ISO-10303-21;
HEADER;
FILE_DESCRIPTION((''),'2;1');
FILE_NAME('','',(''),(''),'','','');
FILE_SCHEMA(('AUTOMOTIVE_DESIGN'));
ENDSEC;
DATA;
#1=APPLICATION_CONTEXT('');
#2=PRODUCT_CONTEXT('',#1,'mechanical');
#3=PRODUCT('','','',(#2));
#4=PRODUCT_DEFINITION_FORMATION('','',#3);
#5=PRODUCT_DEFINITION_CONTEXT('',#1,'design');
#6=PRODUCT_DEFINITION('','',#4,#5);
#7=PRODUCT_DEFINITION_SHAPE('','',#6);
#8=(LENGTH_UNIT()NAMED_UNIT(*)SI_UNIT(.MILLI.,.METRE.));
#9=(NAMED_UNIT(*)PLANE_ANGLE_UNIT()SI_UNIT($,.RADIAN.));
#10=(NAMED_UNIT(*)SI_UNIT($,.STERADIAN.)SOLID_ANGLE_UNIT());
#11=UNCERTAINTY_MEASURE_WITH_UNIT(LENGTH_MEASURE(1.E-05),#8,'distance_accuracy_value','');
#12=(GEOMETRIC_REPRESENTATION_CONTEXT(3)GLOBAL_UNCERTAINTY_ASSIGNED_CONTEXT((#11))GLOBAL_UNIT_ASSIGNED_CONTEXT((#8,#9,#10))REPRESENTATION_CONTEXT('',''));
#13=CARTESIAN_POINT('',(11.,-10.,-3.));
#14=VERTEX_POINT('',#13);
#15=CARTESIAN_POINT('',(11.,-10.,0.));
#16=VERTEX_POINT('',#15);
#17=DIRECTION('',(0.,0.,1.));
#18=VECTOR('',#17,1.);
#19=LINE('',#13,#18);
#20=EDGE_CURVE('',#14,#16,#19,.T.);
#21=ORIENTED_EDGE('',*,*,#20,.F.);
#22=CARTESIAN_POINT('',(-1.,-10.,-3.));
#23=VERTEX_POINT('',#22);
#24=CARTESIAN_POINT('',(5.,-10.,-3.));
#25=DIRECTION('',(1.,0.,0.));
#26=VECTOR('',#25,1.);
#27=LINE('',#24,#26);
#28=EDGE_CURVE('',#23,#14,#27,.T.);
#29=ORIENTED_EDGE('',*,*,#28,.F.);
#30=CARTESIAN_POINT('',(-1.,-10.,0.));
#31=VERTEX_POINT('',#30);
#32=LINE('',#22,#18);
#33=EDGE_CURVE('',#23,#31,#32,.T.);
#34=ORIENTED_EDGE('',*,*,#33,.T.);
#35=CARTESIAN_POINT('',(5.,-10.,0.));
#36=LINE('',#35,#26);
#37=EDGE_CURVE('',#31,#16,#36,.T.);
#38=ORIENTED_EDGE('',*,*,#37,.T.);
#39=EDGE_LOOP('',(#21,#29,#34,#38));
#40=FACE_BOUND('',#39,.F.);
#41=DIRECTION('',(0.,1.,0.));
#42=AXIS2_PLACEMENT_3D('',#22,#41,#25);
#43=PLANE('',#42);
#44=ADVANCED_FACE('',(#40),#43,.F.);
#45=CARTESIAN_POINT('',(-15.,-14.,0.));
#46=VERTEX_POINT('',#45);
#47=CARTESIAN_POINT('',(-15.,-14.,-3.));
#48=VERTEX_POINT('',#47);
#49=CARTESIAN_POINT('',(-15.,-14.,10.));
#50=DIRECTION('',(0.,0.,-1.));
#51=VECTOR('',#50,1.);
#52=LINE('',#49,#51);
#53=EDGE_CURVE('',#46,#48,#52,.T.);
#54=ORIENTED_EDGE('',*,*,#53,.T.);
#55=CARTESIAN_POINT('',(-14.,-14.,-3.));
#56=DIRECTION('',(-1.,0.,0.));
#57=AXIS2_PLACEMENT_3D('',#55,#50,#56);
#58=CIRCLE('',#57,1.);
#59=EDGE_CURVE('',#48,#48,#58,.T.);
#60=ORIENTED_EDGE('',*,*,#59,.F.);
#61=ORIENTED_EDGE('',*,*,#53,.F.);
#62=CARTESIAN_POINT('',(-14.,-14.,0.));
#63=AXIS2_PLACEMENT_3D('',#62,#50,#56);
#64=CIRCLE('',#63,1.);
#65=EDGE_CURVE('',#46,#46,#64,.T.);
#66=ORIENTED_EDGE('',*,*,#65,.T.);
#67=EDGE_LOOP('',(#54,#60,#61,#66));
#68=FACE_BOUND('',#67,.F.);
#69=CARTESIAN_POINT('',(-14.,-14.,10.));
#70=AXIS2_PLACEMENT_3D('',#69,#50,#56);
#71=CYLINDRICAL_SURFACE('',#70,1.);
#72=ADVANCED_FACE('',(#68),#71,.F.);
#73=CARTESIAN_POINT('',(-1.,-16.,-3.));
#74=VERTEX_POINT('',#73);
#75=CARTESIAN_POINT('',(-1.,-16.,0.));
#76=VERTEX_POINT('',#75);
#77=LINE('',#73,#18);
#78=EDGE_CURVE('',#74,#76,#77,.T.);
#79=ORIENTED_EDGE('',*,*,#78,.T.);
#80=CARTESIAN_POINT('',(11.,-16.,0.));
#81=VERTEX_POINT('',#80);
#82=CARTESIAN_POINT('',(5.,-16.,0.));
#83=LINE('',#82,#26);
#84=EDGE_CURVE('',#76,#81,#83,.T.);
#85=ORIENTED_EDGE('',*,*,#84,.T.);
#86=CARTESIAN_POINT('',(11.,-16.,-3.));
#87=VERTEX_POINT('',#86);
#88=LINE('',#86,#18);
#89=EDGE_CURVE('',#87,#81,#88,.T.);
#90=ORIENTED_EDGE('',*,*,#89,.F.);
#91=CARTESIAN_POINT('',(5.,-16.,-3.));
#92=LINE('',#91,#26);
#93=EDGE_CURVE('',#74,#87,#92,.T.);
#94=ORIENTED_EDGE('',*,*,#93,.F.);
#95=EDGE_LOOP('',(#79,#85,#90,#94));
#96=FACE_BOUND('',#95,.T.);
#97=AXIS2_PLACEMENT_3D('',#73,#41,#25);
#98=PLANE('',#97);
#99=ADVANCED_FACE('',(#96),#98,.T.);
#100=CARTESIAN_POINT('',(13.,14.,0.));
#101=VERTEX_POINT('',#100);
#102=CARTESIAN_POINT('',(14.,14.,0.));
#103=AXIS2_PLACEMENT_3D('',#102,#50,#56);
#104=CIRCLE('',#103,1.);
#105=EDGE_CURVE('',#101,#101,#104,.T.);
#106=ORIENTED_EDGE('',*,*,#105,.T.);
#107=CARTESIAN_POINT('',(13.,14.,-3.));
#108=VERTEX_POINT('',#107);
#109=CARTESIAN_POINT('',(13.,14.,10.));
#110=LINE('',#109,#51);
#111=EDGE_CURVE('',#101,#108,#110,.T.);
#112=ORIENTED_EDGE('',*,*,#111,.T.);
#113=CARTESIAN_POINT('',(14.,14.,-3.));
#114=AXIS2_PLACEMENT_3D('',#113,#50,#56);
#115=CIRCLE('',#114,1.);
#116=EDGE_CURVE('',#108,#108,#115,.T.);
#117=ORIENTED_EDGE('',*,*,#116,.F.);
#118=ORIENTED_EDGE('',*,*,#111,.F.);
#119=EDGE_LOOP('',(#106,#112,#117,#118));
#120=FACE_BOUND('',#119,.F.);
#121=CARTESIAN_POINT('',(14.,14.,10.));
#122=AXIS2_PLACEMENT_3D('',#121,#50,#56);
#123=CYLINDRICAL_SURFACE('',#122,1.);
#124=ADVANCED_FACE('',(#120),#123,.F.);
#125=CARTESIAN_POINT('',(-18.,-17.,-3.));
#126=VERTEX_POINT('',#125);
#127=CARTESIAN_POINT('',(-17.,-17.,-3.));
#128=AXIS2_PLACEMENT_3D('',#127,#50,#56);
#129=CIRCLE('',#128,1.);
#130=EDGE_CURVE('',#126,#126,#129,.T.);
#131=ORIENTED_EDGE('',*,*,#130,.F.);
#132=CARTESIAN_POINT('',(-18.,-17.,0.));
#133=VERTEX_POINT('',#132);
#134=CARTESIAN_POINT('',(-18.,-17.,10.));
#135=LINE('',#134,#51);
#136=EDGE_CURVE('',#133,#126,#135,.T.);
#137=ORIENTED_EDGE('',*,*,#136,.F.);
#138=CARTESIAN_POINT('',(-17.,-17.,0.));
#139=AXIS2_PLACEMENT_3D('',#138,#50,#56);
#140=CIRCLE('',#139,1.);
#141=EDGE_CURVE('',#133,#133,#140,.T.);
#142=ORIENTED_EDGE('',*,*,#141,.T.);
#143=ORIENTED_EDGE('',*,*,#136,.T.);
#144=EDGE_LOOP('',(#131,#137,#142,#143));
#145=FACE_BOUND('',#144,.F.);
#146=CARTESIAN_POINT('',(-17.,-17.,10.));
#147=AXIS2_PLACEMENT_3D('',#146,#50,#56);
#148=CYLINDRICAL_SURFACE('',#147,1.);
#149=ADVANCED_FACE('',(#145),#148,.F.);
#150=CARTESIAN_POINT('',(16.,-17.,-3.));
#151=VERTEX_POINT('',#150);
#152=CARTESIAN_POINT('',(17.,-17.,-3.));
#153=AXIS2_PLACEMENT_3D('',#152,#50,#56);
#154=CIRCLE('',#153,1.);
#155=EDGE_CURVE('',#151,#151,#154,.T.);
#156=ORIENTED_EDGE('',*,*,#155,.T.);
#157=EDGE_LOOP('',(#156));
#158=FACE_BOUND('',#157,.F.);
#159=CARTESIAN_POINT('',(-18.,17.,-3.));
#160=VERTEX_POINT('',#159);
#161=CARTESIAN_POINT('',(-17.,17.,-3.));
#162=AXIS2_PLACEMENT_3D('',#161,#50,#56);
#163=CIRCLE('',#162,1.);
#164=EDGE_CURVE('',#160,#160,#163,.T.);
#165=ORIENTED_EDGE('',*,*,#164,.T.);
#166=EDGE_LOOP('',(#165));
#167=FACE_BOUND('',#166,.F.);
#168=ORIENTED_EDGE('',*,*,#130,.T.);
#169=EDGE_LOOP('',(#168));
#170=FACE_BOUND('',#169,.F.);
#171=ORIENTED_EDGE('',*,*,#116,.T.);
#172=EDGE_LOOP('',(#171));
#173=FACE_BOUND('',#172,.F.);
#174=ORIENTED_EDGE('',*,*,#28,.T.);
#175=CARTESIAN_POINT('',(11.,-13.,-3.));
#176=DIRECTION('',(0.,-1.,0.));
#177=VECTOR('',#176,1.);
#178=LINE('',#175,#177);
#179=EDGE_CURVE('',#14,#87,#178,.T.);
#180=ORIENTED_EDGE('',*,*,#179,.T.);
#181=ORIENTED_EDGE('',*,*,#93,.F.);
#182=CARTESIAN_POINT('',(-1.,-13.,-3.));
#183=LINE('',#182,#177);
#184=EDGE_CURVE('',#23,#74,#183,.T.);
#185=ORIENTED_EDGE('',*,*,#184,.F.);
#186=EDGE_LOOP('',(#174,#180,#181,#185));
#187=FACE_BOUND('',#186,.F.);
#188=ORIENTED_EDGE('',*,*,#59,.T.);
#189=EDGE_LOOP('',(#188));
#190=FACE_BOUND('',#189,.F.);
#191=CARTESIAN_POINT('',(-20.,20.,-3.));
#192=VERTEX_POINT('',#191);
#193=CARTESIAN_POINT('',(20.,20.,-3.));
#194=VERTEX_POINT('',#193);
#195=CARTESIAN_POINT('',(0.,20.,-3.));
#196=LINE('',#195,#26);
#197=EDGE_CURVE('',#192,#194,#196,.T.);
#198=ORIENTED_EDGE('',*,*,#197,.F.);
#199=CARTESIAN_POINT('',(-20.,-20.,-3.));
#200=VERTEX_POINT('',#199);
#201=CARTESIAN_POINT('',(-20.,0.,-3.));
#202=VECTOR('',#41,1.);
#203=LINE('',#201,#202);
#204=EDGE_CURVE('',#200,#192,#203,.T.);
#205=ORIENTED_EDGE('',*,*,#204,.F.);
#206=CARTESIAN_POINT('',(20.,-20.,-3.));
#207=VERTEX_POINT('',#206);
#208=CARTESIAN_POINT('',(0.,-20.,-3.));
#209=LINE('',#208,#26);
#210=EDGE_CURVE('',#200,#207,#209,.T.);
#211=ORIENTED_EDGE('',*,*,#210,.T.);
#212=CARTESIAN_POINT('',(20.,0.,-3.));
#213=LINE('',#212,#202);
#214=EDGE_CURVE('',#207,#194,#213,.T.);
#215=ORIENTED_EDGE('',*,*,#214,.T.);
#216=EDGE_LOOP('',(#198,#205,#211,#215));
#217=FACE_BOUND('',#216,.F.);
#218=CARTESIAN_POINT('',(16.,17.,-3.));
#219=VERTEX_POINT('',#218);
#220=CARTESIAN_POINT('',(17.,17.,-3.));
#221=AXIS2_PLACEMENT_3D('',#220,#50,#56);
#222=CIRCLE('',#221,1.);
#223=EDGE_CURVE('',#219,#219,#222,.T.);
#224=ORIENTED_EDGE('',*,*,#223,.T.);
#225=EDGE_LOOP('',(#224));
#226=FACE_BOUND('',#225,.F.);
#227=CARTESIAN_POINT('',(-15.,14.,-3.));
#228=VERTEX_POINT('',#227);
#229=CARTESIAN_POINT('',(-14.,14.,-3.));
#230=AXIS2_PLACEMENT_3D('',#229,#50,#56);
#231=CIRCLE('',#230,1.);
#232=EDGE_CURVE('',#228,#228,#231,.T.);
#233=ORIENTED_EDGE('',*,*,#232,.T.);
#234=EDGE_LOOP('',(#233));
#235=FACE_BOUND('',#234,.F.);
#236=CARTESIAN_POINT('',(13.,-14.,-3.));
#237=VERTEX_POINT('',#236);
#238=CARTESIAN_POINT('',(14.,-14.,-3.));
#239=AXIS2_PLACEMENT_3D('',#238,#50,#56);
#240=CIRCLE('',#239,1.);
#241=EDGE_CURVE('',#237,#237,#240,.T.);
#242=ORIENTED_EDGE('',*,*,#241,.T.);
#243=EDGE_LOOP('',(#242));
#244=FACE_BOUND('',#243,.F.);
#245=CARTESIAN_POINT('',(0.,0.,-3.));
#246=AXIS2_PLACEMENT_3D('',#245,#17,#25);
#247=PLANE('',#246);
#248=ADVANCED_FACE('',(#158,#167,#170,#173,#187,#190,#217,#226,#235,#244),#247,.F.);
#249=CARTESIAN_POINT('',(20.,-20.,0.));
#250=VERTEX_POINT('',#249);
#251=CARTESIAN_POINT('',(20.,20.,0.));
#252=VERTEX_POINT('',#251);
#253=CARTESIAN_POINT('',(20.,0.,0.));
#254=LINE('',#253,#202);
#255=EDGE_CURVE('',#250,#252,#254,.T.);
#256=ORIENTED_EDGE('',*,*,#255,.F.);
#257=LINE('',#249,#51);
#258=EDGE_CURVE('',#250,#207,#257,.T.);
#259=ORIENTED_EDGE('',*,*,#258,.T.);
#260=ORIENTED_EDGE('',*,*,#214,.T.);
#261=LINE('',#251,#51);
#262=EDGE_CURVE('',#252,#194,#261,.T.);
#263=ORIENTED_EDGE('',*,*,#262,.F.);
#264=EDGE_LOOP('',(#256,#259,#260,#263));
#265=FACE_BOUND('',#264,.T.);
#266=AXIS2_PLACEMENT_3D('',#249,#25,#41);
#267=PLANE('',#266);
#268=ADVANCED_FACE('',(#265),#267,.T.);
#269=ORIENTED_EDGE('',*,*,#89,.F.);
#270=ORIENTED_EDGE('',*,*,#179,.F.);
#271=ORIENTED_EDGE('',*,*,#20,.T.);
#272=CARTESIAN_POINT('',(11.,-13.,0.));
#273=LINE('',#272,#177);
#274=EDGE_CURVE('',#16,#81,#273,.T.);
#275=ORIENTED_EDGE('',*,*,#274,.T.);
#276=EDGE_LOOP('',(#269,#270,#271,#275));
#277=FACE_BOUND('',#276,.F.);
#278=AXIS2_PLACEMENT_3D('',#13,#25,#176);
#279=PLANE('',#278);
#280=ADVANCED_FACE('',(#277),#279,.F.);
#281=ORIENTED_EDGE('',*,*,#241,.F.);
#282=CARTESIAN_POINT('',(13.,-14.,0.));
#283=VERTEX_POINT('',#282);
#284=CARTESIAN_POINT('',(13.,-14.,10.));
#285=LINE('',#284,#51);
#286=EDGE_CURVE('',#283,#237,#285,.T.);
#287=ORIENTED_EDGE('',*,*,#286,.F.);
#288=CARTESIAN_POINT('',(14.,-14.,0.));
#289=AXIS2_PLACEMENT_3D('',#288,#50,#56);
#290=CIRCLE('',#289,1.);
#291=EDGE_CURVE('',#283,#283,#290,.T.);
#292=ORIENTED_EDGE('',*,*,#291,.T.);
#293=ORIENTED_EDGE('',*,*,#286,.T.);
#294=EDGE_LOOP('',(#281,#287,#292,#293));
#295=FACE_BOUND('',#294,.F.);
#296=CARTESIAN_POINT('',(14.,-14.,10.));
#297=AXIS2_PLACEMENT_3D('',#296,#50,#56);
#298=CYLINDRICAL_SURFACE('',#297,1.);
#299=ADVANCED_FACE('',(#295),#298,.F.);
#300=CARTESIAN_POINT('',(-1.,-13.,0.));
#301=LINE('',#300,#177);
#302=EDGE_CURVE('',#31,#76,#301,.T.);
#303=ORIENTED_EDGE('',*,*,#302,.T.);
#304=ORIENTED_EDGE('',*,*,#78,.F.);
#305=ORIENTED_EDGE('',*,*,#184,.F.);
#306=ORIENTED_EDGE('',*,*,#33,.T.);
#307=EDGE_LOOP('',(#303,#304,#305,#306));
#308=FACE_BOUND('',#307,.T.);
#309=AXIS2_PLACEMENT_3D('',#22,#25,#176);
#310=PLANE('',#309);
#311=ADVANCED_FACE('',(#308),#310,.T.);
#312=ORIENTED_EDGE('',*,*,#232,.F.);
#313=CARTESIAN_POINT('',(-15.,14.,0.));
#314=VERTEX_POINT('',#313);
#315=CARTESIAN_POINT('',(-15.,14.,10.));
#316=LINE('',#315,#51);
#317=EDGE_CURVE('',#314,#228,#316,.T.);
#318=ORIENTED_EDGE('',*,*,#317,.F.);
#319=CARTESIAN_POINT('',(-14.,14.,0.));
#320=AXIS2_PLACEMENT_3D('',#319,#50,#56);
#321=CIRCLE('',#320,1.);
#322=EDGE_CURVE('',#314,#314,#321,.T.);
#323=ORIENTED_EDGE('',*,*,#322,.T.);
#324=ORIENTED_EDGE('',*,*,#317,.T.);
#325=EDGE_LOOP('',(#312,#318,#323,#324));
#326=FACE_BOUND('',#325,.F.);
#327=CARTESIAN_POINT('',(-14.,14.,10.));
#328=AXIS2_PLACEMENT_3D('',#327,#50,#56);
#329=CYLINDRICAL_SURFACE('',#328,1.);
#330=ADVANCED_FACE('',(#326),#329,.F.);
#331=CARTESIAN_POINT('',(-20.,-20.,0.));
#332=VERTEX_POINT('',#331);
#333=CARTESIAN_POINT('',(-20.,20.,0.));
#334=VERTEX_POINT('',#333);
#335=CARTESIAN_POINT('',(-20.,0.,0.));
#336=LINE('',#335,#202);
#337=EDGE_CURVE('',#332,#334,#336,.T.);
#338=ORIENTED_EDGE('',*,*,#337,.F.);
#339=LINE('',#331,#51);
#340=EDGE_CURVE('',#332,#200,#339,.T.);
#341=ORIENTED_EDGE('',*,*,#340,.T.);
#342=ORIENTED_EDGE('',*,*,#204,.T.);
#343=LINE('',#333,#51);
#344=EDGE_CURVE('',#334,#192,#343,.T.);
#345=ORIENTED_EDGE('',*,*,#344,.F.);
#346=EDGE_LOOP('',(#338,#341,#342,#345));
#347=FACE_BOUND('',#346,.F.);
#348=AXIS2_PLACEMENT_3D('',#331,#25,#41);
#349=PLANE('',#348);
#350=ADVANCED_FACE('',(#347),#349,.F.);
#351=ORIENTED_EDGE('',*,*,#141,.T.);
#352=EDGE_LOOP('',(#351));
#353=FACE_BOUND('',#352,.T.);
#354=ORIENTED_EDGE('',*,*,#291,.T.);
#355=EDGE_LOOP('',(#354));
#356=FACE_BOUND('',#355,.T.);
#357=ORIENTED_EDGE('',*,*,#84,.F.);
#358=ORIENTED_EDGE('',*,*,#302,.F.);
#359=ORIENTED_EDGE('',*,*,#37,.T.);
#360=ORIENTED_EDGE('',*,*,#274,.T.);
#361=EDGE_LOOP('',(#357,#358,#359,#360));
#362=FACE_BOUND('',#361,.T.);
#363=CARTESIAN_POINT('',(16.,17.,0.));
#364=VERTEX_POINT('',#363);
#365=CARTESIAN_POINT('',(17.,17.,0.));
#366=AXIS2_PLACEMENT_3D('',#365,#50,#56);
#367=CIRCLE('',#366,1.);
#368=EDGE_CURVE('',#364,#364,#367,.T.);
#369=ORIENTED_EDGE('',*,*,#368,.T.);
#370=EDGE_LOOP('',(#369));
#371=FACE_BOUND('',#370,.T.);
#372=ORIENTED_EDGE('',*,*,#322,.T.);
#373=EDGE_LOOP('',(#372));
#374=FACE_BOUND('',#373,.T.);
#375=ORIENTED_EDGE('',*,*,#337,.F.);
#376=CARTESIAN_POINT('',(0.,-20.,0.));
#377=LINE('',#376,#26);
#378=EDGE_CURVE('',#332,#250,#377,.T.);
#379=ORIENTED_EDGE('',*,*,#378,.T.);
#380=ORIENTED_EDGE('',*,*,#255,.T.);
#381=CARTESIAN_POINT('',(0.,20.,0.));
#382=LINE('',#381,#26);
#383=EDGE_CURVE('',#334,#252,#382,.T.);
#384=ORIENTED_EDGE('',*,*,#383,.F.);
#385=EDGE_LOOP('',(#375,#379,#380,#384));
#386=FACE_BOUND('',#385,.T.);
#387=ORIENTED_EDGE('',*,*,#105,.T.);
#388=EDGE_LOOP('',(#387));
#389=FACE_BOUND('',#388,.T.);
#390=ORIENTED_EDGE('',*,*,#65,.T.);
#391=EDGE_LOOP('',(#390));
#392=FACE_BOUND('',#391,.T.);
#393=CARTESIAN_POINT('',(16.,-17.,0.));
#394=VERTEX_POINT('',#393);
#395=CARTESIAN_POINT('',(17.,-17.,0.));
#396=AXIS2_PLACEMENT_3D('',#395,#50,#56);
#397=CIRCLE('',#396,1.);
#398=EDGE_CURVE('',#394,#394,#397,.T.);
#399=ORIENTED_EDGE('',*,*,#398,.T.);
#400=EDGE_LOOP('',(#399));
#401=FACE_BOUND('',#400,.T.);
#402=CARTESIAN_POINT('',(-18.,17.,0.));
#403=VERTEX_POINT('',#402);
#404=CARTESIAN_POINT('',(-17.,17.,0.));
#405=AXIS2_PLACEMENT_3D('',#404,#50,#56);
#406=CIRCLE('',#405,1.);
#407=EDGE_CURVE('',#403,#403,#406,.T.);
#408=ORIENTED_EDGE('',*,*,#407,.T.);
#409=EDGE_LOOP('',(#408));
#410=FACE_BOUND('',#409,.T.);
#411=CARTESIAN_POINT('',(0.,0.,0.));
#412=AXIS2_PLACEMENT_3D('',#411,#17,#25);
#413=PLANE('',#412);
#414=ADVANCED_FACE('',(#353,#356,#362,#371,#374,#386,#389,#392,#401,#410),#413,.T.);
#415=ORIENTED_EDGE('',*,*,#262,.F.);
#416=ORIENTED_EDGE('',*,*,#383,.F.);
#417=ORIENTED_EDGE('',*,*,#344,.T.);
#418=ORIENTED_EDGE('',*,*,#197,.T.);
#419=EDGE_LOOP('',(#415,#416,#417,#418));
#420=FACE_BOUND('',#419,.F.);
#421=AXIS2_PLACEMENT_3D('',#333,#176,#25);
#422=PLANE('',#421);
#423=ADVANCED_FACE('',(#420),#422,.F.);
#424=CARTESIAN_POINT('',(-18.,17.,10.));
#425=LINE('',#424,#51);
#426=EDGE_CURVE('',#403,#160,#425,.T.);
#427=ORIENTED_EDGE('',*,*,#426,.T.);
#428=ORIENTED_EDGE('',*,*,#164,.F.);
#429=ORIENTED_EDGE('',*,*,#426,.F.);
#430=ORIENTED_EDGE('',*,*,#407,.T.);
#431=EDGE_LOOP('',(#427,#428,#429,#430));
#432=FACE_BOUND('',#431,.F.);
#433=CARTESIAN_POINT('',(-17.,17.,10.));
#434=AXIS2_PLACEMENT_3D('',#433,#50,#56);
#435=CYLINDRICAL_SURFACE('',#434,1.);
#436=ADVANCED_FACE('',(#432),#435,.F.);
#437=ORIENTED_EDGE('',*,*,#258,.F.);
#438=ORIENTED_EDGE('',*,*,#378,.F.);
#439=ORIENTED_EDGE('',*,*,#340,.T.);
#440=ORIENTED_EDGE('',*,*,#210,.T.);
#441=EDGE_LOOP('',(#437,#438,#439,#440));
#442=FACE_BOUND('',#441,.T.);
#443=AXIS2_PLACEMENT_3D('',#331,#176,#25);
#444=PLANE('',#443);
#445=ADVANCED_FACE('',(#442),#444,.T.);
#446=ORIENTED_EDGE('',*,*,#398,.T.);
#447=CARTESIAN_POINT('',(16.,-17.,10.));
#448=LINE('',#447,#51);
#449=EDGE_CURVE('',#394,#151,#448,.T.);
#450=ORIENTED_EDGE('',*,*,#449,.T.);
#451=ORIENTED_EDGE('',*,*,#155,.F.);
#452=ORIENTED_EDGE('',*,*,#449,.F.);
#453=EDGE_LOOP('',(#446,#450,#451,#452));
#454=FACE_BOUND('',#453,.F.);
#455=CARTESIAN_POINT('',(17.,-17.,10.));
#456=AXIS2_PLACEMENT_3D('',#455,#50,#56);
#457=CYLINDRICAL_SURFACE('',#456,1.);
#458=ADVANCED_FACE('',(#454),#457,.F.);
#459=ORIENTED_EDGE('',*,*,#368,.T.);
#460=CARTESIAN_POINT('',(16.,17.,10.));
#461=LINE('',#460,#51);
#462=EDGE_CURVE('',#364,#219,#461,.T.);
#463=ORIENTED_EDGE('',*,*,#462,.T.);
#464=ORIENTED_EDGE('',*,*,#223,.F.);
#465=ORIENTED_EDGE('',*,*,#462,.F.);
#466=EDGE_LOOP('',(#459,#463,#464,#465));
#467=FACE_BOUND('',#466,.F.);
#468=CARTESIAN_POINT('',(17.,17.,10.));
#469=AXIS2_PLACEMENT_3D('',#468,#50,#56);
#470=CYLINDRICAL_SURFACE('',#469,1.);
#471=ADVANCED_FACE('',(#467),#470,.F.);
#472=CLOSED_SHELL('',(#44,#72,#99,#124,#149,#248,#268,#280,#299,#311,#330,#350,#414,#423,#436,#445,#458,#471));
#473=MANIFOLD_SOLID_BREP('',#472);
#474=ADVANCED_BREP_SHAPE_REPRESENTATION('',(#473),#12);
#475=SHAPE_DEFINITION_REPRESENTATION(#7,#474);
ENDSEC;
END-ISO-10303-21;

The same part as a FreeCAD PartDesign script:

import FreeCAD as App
import Part
import Sketcher
Q = App.Units.Quantity

doc = App.newDocument("Part")
body = doc.addObject("PartDesign::Body", "Body")

sketch1 = doc.addObject("Sketcher::SketchObject", "Sketch")
body.addObject(sketch1)
sketch1.AttachmentSupport = (doc.XY_Plane, [""])
sketch1.MapMode = "FlatFace"
sketch1.addGeometry([
    Part.LineSegment(App.Vector(-20, 20, 0), App.Vector(-20, -20, 0)),
    Part.LineSegment(App.Vector(-20, -20, 0), App.Vector(20, -20, 0)),
    Part.LineSegment(App.Vector(20, -20, 0), App.Vector(20, 20, 0)),
    Part.LineSegment(App.Vector(20, 20, 0), App.Vector(-20, 20, 0)),
], False)
sketch1.addConstraint([
    Sketcher.Constraint("Coincident", 0, 2, 1, 1),
    Sketcher.Constraint("Coincident", 1, 2, 2, 1),
    Sketcher.Constraint("Coincident", 2, 2, 3, 1),
    Sketcher.Constraint("Coincident", 3, 2, 0, 1),
    Sketcher.Constraint("Vertical", 0),
    Sketcher.Constraint("Horizontal", 1),
    Sketcher.Constraint("Vertical", 2),
    Sketcher.Constraint("Horizontal", 3),
    Sketcher.Constraint("Symmetric", 0, 2, 2, 2, -1, 1),
    Sketcher.Constraint("Equal", 3, 0),
    Sketcher.Constraint("DistanceX", 1, 1, 1, 2, Q("40 mm")),
])
pad1 = doc.addObject("PartDesign::Pad", "Pad")
body.addObject(pad1)
pad1.Profile = sketch1
pad1.Length = 3
pad1.Reversed = True

sketch2 = doc.addObject("Sketcher::SketchObject", "Sketch001")
body.addObject(sketch2)
sketch2.AttachmentSupport = (doc.XY_Plane, [""])
sketch2.MapMode = "FlatFace"
sketch2.AttachmentOffset = App.Placement(App.Vector(0, 0, -3), App.Rotation())
sketch2.addGeometry([
    Part.LineSegment(App.Vector(-1, -16, 0), App.Vector(-1, -10, 0)),
    Part.LineSegment(App.Vector(-1, -10, 0), App.Vector(11, -10, 0)),
    Part.LineSegment(App.Vector(11, -10, 0), App.Vector(11, -16, 0)),
    Part.LineSegment(App.Vector(11, -16, 0), App.Vector(-1, -16, 0)),
], False)
sketch2.addConstraint([
    Sketcher.Constraint("Coincident", 0, 2, 1, 1),
    Sketcher.Constraint("Coincident", 1, 2, 2, 1),
    Sketcher.Constraint("Coincident", 2, 2, 3, 1),
    Sketcher.Constraint("Coincident", 3, 2, 0, 1),
    Sketcher.Constraint("Vertical", 0),
    Sketcher.Constraint("Horizontal", 1),
    Sketcher.Constraint("Vertical", 2),
    Sketcher.Constraint("Horizontal", 3),
    Sketcher.Constraint("DistanceX", 1, 1, 1, 2, Q("12 mm")),
    Sketcher.Constraint("DistanceY", 0, 1, 0, 2, Q("6 mm")),
    Sketcher.Constraint("DistanceX", 0, 2, -1, 1, Q("1 mm")),
    Sketcher.Constraint("DistanceY", 0, 2, -1, 1, Q("10 mm")),
])
pocket1 = doc.addObject("PartDesign::Pocket", "Pocket")
body.addObject(pocket1)
pocket1.Profile = sketch2
pocket1.Length = 3
pocket1.Reversed = True

sketch3 = doc.addObject("Sketcher::SketchObject", "Sketch002")
body.addObject(sketch3)
sketch3.AttachmentSupport = (doc.XY_Plane, [""])
sketch3.MapMode = "FlatFace"
sketch3.addGeometry([
    Part.Circle(App.Vector(-17, 17, 0), App.Vector(0, 0, 1), 1),
    Part.Circle(App.Vector(17, 17, 0), App.Vector(0, 0, 1), 1),
    Part.Circle(App.Vector(14, 14, 0), App.Vector(0, 0, 1), 1),
    Part.Circle(App.Vector(-14, 14, 0), App.Vector(0, 0, 1), 1),
    Part.Circle(App.Vector(-17, -17, 0), App.Vector(0, 0, 1), 1),
    Part.Circle(App.Vector(-14, -14, 0), App.Vector(0, 0, 1), 1),
    Part.Circle(App.Vector(14, -14, 0), App.Vector(0, 0, 1), 1),
    Part.Circle(App.Vector(17, -17, 0), App.Vector(0, 0, 1), 1),
], False)
sketch3.addConstraint([
    Sketcher.Constraint("Equal", 0, 1),
    Sketcher.Constraint("Equal", 1, 2),
    Sketcher.Constraint("Equal", 2, 3),
    Sketcher.Constraint("Equal", 3, 4),
    Sketcher.Constraint("Equal", 4, 5),
    Sketcher.Constraint("Equal", 5, 6),
    Sketcher.Constraint("Equal", 6, 7),
    Sketcher.Constraint("Symmetric", 1, 3, 4, 3, -1, 1),
    Sketcher.Constraint("Symmetric", 2, 3, 5, 3, -1, 1),
    Sketcher.Constraint("Symmetric", 3, 3, 6, 3, -1, 1),
    Sketcher.Constraint("Symmetric", 0, 3, 7, 3, -1, 1),
    Sketcher.Constraint("Symmetric", 0, 3, 1, 3, -2),
    Sketcher.Constraint("Symmetric", 2, 3, 3, 3, -2),
    Sketcher.Constraint("Diameter", 0, Q("2 mm")),
    Sketcher.Constraint("DistanceX", 0, 3, -1, 1, Q("17 mm")),
    Sketcher.Constraint("DistanceY", -1, 1, 0, 3, Q("17 mm")),
    Sketcher.Constraint("DistanceX", -1, 1, 2, 3, Q("14 mm")),
    Sketcher.Constraint("DistanceY", -1, 1, 2, 3, Q("14 mm")),
])
doc.recompute()
hole = doc.addObject("PartDesign::Hole", "Hole")
body.addObject(hole)
hole.Profile = sketch3
hole.ThreadType = "None"
hole.Diameter = 2
hole.DepthType = "Dimension"
hole.Depth = 10
hole.DrillPoint = "Flat"

doc.recompute()
